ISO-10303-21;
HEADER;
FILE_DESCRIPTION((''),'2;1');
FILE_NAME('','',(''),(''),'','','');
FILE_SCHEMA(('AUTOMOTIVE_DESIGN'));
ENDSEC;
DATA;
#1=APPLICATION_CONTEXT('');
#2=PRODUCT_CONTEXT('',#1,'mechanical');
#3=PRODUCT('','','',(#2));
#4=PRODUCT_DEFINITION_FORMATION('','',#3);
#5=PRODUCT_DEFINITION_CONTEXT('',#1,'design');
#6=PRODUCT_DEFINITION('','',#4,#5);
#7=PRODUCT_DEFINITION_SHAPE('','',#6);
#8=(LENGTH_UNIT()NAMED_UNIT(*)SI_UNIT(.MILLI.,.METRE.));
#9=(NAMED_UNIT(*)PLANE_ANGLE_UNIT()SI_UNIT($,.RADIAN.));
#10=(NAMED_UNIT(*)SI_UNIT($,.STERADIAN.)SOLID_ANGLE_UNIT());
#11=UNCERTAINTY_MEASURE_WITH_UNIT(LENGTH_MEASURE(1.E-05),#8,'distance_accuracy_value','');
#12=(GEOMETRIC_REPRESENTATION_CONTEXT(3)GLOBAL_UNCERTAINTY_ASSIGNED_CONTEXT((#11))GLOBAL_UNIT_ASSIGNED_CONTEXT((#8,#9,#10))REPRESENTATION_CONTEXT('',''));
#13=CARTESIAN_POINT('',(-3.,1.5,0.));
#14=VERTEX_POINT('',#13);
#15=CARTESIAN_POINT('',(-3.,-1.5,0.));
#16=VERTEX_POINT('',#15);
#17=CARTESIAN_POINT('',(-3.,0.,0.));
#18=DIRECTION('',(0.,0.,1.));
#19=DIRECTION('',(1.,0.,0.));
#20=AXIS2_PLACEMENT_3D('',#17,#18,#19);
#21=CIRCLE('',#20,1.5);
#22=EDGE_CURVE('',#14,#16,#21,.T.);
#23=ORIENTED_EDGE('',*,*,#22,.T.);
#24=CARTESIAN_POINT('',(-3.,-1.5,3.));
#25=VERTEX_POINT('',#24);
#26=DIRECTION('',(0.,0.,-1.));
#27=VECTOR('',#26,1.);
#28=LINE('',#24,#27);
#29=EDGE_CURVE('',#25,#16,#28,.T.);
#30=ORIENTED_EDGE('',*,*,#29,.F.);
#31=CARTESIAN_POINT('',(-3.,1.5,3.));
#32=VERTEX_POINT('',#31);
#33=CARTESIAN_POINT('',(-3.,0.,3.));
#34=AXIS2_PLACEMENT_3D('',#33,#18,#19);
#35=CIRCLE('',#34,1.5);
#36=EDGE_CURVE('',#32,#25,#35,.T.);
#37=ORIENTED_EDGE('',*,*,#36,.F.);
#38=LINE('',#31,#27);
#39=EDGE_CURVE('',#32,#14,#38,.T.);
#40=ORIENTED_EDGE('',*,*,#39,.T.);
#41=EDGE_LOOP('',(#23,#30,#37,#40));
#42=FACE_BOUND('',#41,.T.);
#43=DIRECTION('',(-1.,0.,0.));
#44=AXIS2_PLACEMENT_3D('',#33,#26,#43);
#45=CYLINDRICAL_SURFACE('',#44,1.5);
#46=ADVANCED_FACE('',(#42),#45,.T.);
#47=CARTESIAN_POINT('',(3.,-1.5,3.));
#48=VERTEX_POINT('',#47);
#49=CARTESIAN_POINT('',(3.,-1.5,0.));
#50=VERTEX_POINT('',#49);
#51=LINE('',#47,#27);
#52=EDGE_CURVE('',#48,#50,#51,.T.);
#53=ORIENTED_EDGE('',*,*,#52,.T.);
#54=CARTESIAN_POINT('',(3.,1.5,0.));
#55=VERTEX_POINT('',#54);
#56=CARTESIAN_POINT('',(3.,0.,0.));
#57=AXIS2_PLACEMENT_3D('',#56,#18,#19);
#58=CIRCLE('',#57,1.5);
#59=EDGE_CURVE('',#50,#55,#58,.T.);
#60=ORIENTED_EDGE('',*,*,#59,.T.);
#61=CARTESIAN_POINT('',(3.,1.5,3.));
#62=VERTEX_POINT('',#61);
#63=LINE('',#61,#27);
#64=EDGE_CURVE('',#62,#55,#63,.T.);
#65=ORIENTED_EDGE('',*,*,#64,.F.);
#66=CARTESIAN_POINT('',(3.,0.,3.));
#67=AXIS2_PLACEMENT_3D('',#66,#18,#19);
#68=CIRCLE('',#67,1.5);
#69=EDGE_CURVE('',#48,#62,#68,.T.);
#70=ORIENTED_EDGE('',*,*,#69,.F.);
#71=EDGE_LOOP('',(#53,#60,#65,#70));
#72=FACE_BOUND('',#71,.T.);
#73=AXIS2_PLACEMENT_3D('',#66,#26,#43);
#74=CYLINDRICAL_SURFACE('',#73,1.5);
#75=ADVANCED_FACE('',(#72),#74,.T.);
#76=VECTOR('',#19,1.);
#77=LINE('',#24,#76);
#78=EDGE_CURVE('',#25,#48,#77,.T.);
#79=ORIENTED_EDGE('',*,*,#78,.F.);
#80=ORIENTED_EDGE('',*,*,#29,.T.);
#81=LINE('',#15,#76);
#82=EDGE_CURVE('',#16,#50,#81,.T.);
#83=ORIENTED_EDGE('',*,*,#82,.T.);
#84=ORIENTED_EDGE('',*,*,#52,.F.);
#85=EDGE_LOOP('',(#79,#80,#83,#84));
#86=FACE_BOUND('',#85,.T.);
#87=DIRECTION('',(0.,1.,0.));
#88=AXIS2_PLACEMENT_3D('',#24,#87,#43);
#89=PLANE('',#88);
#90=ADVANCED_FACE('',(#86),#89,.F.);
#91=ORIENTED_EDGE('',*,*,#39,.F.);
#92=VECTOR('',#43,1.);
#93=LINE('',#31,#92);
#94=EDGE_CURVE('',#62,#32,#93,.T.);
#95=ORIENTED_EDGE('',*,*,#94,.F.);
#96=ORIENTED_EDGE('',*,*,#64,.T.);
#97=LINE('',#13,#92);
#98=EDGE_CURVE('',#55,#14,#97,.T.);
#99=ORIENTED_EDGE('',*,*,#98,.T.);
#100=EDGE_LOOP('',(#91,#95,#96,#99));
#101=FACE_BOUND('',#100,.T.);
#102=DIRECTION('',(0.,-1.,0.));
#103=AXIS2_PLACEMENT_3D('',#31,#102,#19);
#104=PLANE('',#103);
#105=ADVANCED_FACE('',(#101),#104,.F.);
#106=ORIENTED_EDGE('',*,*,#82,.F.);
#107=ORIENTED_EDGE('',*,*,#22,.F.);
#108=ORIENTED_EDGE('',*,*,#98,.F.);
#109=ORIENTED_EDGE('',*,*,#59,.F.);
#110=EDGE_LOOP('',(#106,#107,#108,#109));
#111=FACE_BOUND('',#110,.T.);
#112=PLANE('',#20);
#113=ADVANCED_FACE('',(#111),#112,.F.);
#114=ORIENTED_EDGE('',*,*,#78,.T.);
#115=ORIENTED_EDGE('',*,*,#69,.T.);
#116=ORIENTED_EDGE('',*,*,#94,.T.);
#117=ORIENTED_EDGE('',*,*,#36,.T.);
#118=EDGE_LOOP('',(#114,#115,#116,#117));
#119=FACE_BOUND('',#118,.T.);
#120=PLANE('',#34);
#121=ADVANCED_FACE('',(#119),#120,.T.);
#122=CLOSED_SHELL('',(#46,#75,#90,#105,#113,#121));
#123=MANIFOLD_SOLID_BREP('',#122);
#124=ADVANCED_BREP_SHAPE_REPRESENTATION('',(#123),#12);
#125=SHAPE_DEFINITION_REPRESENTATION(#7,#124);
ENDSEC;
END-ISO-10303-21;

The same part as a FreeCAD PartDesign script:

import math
import FreeCAD as App
import Part
import Sketcher
from FreeCAD import Vector
Q = App.Units.Quantity

doc = App.newDocument("Part")
params = doc.addObject("Spreadsheet::Sheet", "Params")
for row, (alias, value) in enumerate([
    ("sketch1_radius", "1.5 mm"),
    ("sketch1_width", "6 mm"),
    ("pad1_length", "3 mm"),
], start=1):
    params.set(f"A{row}", alias)
    params.set(f"B{row}", "=" + value)
    params.setAlias(f"B{row}", alias)

body = doc.addObject("PartDesign::Body", "Body")

sketch1 = body.newObject("Sketcher::SketchObject", "Sketch")
sketch1.AttachmentSupport = (doc.getObject("XY_Plane"), [""])
sketch1.MapMode = "FlatFace"
sketch1.addGeometry(Part.LineSegment(Vector(3, 1.5, 0), Vector(-3, 1.5, 0)), False)
sketch1.addGeometry(Part.ArcOfCircle(Part.Circle(Vector(-3, 0, 0), Vector(0, 0, 1), 1.5), math.radians(90), math.radians(270)), False)
sketch1.addGeometry(Part.LineSegment(Vector(-3, -1.5, 0), Vector(3, -1.5, 0)), False)
sketch1.addGeometry(Part.ArcOfCircle(Part.Circle(Vector(3, 0, 0), Vector(0, 0, 1), 1.5), math.radians(-90), math.radians(90)), False)
sketch1.addConstraint(Sketcher.Constraint("Tangent", 0, 2, 1, 1))
sketch1.addConstraint(Sketcher.Constraint("Tangent", 1, 2, 2, 1))
sketch1.addConstraint(Sketcher.Constraint("Tangent", 2, 2, 3, 1))
sketch1.addConstraint(Sketcher.Constraint("Tangent", 3, 2, 0, 1))
sketch1.addConstraint(Sketcher.Constraint("Horizontal", 0))
sketch1.addConstraint(Sketcher.Constraint("Horizontal", 2))
sketch1.addConstraint(Sketcher.Constraint("Symmetric", 1, 3, 3, 3, -1, 1))
sketch1.addConstraint(Sketcher.Constraint("Radius", 1, Q("1.5 mm")))
sketch1.addConstraint(Sketcher.Constraint("DistanceX", 0, 2, 0, 1, Q("6 mm")))
sketch1.setExpression("Constraints[7]", "Params.sketch1_radius")
sketch1.setExpression("Constraints[8]", "Params.sketch1_width")
pad1 = body.newObject("PartDesign::Pad", "Pad")
pad1.Profile = sketch1
pad1.setExpression("Length", "Params.pad1_length")

doc.recompute()
